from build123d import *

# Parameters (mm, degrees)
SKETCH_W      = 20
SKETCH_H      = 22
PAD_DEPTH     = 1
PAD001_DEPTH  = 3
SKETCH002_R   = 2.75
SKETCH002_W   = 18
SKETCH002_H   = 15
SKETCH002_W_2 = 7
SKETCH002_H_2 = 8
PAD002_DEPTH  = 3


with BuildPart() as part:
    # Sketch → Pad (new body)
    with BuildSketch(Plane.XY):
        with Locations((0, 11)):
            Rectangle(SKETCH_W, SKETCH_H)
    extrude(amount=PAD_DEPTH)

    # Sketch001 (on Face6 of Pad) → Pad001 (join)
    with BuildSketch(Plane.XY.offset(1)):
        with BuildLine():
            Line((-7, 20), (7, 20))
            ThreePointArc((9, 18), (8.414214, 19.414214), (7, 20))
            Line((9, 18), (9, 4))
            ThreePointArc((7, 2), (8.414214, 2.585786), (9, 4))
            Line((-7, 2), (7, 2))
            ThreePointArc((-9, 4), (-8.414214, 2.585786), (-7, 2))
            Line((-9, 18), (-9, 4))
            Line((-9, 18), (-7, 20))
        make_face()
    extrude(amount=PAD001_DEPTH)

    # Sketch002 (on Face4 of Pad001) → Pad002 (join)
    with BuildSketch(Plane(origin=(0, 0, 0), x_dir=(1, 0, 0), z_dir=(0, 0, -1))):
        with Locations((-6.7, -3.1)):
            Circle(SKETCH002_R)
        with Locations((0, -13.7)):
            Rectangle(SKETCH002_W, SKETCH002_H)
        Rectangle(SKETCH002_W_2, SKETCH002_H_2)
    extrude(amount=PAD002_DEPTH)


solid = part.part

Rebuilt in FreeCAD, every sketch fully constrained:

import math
import FreeCAD as App
import Part
import Sketcher
Q = App.Units.Quantity


def add_polygon(sketch, points):
    """Adds a closed chain of lines whose ends are joined by coincident constraints."""
    first, n = sketch.GeometryCount, len(points)
    for a, b in zip(points, points[1:] + points[:1]):
        sketch.addGeometry(Part.LineSegment(App.Vector(*a, 0), App.Vector(*b, 0)), False)
    for i in range(n):
        sketch.addConstraint(Sketcher.Constraint("Coincident", first + i, 2, first + (i + 1) % n, 1))

doc = App.newDocument("Part")
body = doc.addObject("PartDesign::Body", "Body")

# Sketch on XY plane
sketch1 = body.newObject("Sketcher::SketchObject", "Sketch")
sketch1.AttachmentSupport = (doc.getObject("XY_Plane"), [""])
sketch1.MapMode = "FlatFace"
add_polygon(sketch1, [(-10, 22), (-10, 0), (10, 0), (10, 22)])  # lines 0-3
sketch1.addConstraint(Sketcher.Constraint("Vertical", 0))
sketch1.addConstraint(Sketcher.Constraint("Horizontal", 1))
sketch1.addConstraint(Sketcher.Constraint("Vertical", 2))
sketch1.addConstraint(Sketcher.Constraint("Horizontal", 3))
sketch1.addConstraint(Sketcher.Constraint("Symmetric", 0, 2, 1, 2, -1, 1))
sketch1.addConstraint(Sketcher.Constraint("DistanceX", 1, 1, 1, 2, Q("20 mm")))
sketch1.addConstraint(Sketcher.Constraint("DistanceY", 0, 2, 0, 1, Q("22 mm")))
pad1 = body.newObject("PartDesign::Pad", "Pad")
pad1.Profile = sketch1
pad1.Length = 1

# Sketch on XY plane
sketch2 = body.newObject("Sketcher::SketchObject", "Sketch001")
sketch2.AttachmentSupport = (doc.getObject("XY_Plane"), [""])
sketch2.MapMode = "FlatFace"
sketch2.AttachmentOffset = App.Placement(App.Vector(0, 0, 1), App.Rotation())
sketch2.addGeometry(Part.LineSegment(App.Vector(7, 20, 0), App.Vector(-7, 20, 0)), False)
sketch2.addGeometry(Part.LineSegment(App.Vector(-7, 20, 0), App.Vector(-9, 18, 0)), False)
sketch2.addGeometry(Part.LineSegment(App.Vector(-9, 18, 0), App.Vector(-9, 4, 0)), False)
sketch2.addGeometry(Part.ArcOfCircle(Part.Circle(App.Vector(-7, 4, 0), App.Vector(0, 0, 1), 2), math.radians(180), math.radians(270)), False)
sketch2.addGeometry(Part.LineSegment(App.Vector(-7, 2, 0), App.Vector(7, 2, 0)), False)
sketch2.addGeometry(Part.ArcOfCircle(Part.Circle(App.Vector(7, 4, 0), App.Vector(0, 0, 1), 2), math.radians(-90), math.radians(0)), False)
sketch2.addGeometry(Part.LineSegment(App.Vector(9, 4, 0), App.Vector(9, 18, 0)), False)
sketch2.addGeometry(Part.ArcOfCircle(Part.Circle(App.Vector(7, 18, 0), App.Vector(0, 0, 1), 2), math.radians(0), math.radians(90)), False)
sketch2.addConstraint(Sketcher.Constraint("Coincident", 0, 2, 1, 1))
sketch2.addConstraint(Sketcher.Constraint("Coincident", 1, 2, 2, 1))
sketch2.addConstraint(Sketcher.Constraint("Tangent", 2, 2, 3, 1))
sketch2.addConstraint(Sketcher.Constraint("Tangent", 3, 2, 4, 1))
sketch2.addConstraint(Sketcher.Constraint("Tangent", 4, 2, 5, 1))
sketch2.addConstraint(Sketcher.Constraint("Tangent", 5, 2, 6, 1))
sketch2.addConstraint(Sketcher.Constraint("Tangent", 6, 2, 7, 1))
sketch2.addConstraint(Sketcher.Constraint("Tangent", 7, 2, 0, 1))
sketch2.addConstraint(Sketcher.Constraint("Horizontal", 0))
sketch2.addConstraint(Sketcher.Constraint("Vertical", 2))
sketch2.addConstraint(Sketcher.Constraint("Horizontal", 4))
sketch2.addConstraint(Sketcher.Constraint("Vertical", 6))
sketch2.addConstraint(Sketcher.Constraint("Equal", 3, 5))
sketch2.addConstraint(Sketcher.Constraint("Equal", 5, 7))
sketch2.addConstraint(Sketcher.Constraint("Symmetric", 1, 2, 6, 2, -2))
sketch2.addConstraint(Sketcher.Constraint("Vertical", 3, 3, 0, 2))
sketch2.addConstraint(Sketcher.Constraint("Equal", 4, 2))
sketch2.addConstraint(Sketcher.Constraint("Radius", 3, Q("1.999999 mm")))
sketch2.addConstraint(Sketcher.Constraint("DistanceX", 0, 2, 0, 1, Q("14 mm")))
sketch2.addConstraint(Sketcher.Constraint("DistanceY", -1, 1, 3, 3, Q("3.999999 mm")))
pad2 = body.newObject("PartDesign::Pad", "Pad001")
pad2.Profile = sketch2
pad2.Length = 3

# Sketch on XY plane
sketch3 = body.newObject("Sketcher::SketchObject", "Sketch002")
sketch3.AttachmentSupport = (doc.getObject("XY_Plane"), [""])
sketch3.MapMode = "FlatFace"
sketch3.addGeometry(Part.Circle(App.Vector(-6.7, 3.1, 0), App.Vector(0, 0, 1), 2.8), False)  # 0
add_polygon(sketch3, [(-9, 6.2), (-9, 21.2), (9, 21.2), (9, 6.2)])  # lines 1-4
add_polygon(sketch3, [(-3.5, -4), (-3.5, 4), (3.5, 4), (3.5, -4)])  # lines 5-8
sketch3.addConstraint(Sketcher.Constraint("Vertical", 1))
sketch3.addConstraint(Sketcher.Constraint("Horizontal", 2))
sketch3.addConstraint(Sketcher.Constraint("Vertical", 3))
sketch3.addConstraint(Sketcher.Constraint("Horizontal", 4))
sketch3.addConstraint(Sketcher.Constraint("Vertical", 5))
sketch3.addConstraint(Sketcher.Constraint("Horizontal", 6))
sketch3.addConstraint(Sketcher.Constraint("Vertical", 7))
sketch3.addConstraint(Sketcher.Constraint("Horizontal", 8))
sketch3.addConstraint(Sketcher.Constraint("Symmetric", 5, 2, 7, 2, -1, 1))
sketch3.addConstraint(Sketcher.Constraint("Diameter", 0, Q("5.5 mm")))
sketch3.addConstraint(Sketcher.Constraint("DistanceX", 2, 1, 2, 2, Q("18 mm")))
sketch3.addConstraint(Sketcher.Constraint("DistanceX", 6, 1, 6, 2, Q("7 mm")))
sketch3.addConstraint(Sketcher.Constraint("DistanceY", 1, 1, 1, 2, Q("15 mm")))
sketch3.addConstraint(Sketcher.Constraint("DistanceY", 5, 1, 5, 2, Q("8 mm")))
sketch3.addConstraint(Sketcher.Constraint("DistanceX", 1, 2, -1, 1, Q("9 mm")))
sketch3.addConstraint(Sketcher.Constraint("DistanceX", 0, 3, -1, 1, Q("6.7 mm")))
sketch3.addConstraint(Sketcher.Constraint("DistanceY", -1, 1, 0, 3, Q("3.1 mm")))
sketch3.addConstraint(Sketcher.Constraint("DistanceY", -1, 1, 1, 2, Q("21.2 mm")))
pad3 = body.newObject("PartDesign::Pad", "Pad002")
pad3.Profile = sketch3
pad3.Length = 3
pad3.Reversed = True

doc.recompute()
